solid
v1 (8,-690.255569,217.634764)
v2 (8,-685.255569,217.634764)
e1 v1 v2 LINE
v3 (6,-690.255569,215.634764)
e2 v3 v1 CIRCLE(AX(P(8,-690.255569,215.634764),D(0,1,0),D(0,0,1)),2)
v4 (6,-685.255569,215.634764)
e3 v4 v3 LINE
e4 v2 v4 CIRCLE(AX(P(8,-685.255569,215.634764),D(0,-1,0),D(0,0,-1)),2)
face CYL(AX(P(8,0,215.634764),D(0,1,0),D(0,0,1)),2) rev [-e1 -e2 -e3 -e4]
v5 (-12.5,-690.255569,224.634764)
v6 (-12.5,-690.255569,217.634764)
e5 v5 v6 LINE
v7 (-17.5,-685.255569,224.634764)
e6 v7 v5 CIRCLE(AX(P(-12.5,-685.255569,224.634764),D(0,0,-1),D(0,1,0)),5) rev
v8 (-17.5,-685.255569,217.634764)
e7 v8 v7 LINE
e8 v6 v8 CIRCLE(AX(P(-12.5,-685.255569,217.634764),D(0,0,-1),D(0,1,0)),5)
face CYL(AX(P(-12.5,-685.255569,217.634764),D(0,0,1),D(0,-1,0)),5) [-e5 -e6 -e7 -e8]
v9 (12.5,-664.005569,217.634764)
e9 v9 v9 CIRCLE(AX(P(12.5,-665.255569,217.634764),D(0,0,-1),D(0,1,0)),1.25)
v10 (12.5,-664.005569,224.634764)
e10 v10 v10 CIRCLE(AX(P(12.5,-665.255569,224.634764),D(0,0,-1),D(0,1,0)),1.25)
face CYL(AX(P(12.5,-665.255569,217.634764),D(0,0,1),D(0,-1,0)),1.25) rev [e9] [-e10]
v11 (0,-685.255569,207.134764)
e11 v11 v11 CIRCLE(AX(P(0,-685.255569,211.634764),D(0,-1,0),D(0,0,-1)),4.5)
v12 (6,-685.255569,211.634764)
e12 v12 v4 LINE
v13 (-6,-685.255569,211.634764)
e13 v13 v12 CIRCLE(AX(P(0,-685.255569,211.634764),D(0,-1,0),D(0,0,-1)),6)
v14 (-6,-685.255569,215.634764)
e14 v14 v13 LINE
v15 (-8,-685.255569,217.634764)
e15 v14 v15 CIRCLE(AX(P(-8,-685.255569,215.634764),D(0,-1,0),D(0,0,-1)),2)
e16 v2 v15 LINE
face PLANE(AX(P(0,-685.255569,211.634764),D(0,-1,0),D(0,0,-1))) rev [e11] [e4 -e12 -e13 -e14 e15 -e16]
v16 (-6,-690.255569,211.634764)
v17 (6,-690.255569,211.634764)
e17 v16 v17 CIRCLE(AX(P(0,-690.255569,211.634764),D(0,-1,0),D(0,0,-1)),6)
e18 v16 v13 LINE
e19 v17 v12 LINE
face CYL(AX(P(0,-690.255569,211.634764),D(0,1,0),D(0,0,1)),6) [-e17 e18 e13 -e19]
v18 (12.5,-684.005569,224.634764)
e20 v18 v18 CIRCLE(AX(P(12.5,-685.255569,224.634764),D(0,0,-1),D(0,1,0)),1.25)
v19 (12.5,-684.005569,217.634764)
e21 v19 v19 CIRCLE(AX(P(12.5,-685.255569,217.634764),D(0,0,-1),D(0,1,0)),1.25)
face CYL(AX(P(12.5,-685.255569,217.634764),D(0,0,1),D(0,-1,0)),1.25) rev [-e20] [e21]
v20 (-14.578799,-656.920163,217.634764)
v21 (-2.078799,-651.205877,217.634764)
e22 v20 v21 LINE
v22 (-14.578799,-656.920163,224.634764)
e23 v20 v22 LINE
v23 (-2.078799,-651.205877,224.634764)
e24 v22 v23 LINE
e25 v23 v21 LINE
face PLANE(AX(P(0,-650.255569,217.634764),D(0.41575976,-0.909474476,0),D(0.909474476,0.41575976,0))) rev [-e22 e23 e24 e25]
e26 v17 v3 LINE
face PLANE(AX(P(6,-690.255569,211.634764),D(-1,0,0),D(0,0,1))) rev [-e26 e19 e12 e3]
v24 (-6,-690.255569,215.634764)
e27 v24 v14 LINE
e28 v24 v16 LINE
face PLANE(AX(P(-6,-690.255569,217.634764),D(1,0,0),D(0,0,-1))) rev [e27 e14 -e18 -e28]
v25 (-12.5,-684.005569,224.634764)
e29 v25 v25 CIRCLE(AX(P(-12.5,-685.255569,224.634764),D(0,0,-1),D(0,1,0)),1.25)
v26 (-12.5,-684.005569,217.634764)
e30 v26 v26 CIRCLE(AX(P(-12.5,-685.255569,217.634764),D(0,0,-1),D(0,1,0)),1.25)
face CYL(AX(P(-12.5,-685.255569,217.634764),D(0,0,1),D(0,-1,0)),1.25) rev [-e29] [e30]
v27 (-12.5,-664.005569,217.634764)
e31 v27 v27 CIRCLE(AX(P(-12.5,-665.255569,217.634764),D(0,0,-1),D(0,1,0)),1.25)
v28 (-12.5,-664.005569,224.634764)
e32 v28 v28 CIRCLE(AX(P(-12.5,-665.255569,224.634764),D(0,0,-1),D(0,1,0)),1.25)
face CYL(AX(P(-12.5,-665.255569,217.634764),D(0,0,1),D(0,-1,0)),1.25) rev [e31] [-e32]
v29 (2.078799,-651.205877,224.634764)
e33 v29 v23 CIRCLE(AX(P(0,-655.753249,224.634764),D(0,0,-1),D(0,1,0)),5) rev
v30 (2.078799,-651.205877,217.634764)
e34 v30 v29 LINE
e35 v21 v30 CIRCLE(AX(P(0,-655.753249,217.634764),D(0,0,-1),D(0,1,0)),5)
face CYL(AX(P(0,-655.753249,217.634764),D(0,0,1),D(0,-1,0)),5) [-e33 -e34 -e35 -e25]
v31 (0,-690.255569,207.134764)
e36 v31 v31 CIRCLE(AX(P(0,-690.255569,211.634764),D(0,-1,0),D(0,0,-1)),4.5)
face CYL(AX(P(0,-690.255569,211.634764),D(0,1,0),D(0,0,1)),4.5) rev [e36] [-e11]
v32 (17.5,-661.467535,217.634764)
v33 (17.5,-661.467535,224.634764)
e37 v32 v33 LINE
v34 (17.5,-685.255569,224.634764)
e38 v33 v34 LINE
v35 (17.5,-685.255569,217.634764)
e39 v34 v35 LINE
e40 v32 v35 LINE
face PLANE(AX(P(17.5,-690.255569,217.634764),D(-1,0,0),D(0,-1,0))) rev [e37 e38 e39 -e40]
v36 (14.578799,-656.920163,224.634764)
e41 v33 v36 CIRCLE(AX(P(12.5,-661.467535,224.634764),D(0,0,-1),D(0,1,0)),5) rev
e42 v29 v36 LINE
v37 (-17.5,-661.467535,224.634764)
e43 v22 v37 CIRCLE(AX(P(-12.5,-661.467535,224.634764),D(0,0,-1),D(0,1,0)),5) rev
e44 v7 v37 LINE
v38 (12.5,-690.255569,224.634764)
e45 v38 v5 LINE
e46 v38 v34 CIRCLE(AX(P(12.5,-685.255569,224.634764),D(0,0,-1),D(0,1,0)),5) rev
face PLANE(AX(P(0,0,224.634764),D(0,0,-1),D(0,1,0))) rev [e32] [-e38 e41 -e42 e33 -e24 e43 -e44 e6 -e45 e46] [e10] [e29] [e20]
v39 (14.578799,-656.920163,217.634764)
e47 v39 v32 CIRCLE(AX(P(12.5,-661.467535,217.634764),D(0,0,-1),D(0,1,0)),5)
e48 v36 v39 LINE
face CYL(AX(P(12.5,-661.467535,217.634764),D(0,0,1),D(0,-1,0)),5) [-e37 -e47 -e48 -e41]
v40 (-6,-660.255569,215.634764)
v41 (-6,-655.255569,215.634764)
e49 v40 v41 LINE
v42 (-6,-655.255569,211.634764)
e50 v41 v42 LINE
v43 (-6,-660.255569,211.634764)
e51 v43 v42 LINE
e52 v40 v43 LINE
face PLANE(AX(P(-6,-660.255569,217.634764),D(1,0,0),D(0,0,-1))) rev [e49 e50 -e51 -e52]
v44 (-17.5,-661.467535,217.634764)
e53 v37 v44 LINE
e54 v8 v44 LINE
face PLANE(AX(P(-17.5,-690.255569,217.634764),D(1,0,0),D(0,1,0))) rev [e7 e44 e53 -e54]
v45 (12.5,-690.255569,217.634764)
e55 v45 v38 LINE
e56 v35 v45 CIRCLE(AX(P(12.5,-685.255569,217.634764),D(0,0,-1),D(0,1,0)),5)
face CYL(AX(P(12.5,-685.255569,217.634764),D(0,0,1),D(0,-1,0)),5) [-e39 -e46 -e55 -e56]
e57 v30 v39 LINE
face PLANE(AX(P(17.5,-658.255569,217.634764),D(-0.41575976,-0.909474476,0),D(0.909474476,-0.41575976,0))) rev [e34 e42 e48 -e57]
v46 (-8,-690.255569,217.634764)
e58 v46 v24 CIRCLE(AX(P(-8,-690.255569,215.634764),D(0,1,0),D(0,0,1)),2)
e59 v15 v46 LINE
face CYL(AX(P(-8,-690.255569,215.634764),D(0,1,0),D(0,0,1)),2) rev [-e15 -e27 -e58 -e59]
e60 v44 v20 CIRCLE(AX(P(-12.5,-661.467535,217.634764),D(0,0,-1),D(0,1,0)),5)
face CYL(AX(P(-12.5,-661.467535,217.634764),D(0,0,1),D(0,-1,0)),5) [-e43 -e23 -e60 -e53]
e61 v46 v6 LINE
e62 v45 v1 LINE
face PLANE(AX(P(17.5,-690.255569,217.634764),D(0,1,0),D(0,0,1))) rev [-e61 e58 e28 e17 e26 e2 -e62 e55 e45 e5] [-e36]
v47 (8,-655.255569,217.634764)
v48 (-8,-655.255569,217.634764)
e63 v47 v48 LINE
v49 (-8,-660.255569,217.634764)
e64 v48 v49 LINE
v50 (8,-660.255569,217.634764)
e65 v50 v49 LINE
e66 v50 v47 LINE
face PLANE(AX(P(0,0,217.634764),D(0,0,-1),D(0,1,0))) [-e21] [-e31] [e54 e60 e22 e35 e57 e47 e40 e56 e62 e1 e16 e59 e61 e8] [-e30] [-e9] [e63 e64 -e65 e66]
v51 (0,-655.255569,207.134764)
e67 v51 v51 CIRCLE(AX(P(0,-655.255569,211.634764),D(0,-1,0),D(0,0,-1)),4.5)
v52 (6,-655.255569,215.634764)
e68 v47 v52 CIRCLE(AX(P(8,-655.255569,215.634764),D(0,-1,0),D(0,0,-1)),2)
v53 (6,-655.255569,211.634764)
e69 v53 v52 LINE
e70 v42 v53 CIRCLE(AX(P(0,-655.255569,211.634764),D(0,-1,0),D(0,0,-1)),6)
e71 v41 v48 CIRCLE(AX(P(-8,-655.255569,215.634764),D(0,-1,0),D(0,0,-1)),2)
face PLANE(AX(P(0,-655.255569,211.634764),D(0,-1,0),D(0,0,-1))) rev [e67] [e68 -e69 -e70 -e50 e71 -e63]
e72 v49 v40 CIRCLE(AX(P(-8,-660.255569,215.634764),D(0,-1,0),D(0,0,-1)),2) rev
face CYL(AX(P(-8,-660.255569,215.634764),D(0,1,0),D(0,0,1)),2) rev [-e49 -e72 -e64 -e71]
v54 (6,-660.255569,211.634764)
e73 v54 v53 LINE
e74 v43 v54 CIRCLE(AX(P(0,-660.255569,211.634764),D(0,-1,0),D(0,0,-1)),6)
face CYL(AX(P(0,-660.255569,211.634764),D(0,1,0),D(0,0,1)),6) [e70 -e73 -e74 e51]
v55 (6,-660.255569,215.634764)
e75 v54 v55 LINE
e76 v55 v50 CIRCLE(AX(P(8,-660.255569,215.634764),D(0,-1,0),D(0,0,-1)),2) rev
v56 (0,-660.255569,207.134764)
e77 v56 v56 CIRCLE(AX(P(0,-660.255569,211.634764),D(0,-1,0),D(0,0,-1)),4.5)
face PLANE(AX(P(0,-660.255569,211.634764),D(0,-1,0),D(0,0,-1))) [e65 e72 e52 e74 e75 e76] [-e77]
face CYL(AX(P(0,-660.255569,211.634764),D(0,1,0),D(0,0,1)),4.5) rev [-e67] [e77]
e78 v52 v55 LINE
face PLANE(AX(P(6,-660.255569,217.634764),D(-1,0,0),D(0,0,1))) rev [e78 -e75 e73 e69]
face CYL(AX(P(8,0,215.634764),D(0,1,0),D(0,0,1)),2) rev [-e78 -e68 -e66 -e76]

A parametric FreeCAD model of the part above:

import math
import FreeCAD as App
import Part
import Sketcher
Q = App.Units.Quantity


def edges_at(feature, points):
    """Names of the edges that pass closest to the given points."""
    edges = feature.Shape.Edges
    near = lambda p: min(range(len(edges)), key=lambda i: edges[i].distToShape(Part.Vertex(*p))[0])
    return sorted({f"Edge{near(p) + 1}" for p in points})


def add_polygon(sketch, points):
    """Adds a closed chain of lines whose ends are joined by coincident constraints."""
    first, n = sketch.GeometryCount, len(points)
    for a, b in zip(points, points[1:] + points[:1]):
        sketch.addGeometry(Part.LineSegment(App.Vector(*a, 0), App.Vector(*b, 0)), False)
    for i in range(n):
        sketch.addConstraint(Sketcher.Constraint("Coincident", first + i, 2, first + (i + 1) % n, 1))

doc = App.newDocument("Part")
params = doc.addObject("Spreadsheet::Sheet", "Params")
for row, (alias, value) in enumerate([
    ("sketch1_diameter", "2.5 mm"),
    ("sketch1_width", "35 mm"),
    ("sketch1_height", "32 mm"),
    ("pad1_length", "7 mm"),
    ("sketch2_diameter", "9 mm"),
    ("sketch2_radius", "6 mm"),
    ("sketch2_height", "6 mm"),
    ("pad2_length", "5 mm"),
    ("sketch3_diameter", "9 mm"),
    ("sketch3_radius", "6 mm"),
    ("sketch3_height", "6 mm"),
    ("pad3_length", "5 mm"),
    ("fillet_radius", "2 mm"),
    ("fillet2_radius", "5 mm"),
], start=1):
    params.set(f"A{row}", alias)
    params.set(f"B{row}", "=" + value)
    params.setAlias(f"B{row}", alias)

body = doc.addObject("PartDesign::Body", "Body")

sketch1 = body.newObject("Sketcher::SketchObject", "Sketch")
sketch1.AttachmentSupport = (doc.getObject("XY_Plane"), [""])
sketch1.MapMode = "FlatFace"
sketch1.AttachmentOffset = App.Placement(App.Vector(0, 0, 224.634764), App.Rotation())
add_polygon(sketch1, [(17.5, -658.3), (17.5, -690.3), (-17.5, -690.3), (-17.5, -658.3), (0, -650.3)])
sketch1.addGeometry(Part.Circle(App.Vector(12.5, -665.3, 0), App.Vector(0, 0, 1), 1.2), False)
sketch1.addGeometry(Part.Circle(App.Vector(-12.5, -665.3, 0), App.Vector(0, 0, 1), 1.2), False)
sketch1.addGeometry(Part.Circle(App.Vector(12.5, -685.3, 0), App.Vector(0, 0, 1), 1.2), False)
sketch1.addGeometry(Part.Circle(App.Vector(-12.5, -685.3, 0), App.Vector(0, 0, 1), 1.2), False)
sketch1.addConstraint(Sketcher.Constraint("Vertical", 0))
sketch1.addConstraint(Sketcher.Constraint("Horizontal", 1))
sketch1.addConstraint(Sketcher.Constraint("Vertical", 2))
sketch1.addConstraint(Sketcher.Constraint("Equal", 5, 6))
sketch1.addConstraint(Sketcher.Constraint("Equal", 6, 7))
sketch1.addConstraint(Sketcher.Constraint("Equal", 7, 8))
sketch1.addConstraint(Sketcher.Constraint("Symmetric", 5, 3, 6, 3, -2))
sketch1.addConstraint(Sketcher.Constraint("Symmetric", 7, 3, 8, 3, -2))
sketch1.addConstraint(Sketcher.Constraint("Symmetric", 2, 2, 4, 2, -2))
sketch1.addConstraint(Sketcher.Constraint("PointOnObject", 3, 2, -2))
sketch1.addConstraint(Sketcher.Constraint("Vertical", 5, 3, 7, 3))
sketch1.addConstraint(Sketcher.Constraint("Diameter", 5, Q("2.5 mm")))
sketch1.addConstraint(Sketcher.Constraint("DistanceX", 1, 2, 1, 1, Q("35 mm")))
sketch1.addConstraint(Sketcher.Constraint("DistanceY", 0, 2, 0, 1, Q("32 mm")))
sketch1.addConstraint(Sketcher.Constraint("DistanceX", 6, 3, 5, 3, Q("25 mm")))
sketch1.addConstraint(Sketcher.Constraint("DistanceY", 7, 3, 5, 3, Q("20 mm")))
sketch1.addConstraint(Sketcher.Constraint("DistanceY", 0, 2, 7, 3, Q("5 mm")))
sketch1.addConstraint(Sketcher.Constraint("DistanceY", 2, 2, 3, 2, Q("8 mm")))
sketch1.addConstraint(Sketcher.Constraint("DistanceY", 5, 3, -1, 1, Q("665.255569 mm")))
sketch1.setExpression("Constraints[16]", "Params.sketch1_diameter")
sketch1.setExpression("Constraints[17]", "Params.sketch1_width")
sketch1.setExpression("Constraints[18]", "Params.sketch1_height")
pad1 = body.newObject("PartDesign::Pad", "Pad")
pad1.Profile = sketch1
pad1.setExpression("Length", "Params.pad1_length")
pad1.Reversed = True

sketch2 = body.newObject("Sketcher::SketchObject", "Sketch001")
sketch2.AttachmentSupport = (doc.getObject("XZ_Plane"), [""])
sketch2.MapMode = "FlatFace"
sketch2.AttachmentOffset = App.Placement(App.Vector(0, 0, 655.255569), App.Rotation())
sketch2.addGeometry(Part.LineSegment(App.Vector(6, 217.6, 0), App.Vector(-6, 217.6, 0)), False)
sketch2.addGeometry(Part.LineSegment(App.Vector(-6, 217.6, 0), App.Vector(-6, 211.6, 0)), False)
sketch2.addGeometry(Part.ArcOfCircle(Part.Circle(App.Vector(0, 211.6, 0), App.Vector(0, 0, 1), 6), math.radians(180), math.radians(360)), False)
sketch2.addGeometry(Part.LineSegment(App.Vector(6, 211.6, 0), App.Vector(6, 217.6, 0)), False)
sketch2.addGeometry(Part.Circle(App.Vector(0, 211.6, 0), App.Vector(0, 0, 1), 4.5), False)
sketch2.addConstraint(Sketcher.Constraint("Coincident", 0, 2, 1, 1))
sketch2.addConstraint(Sketcher.Constraint("Tangent", 1, 2, 2, 1))
sketch2.addConstraint(Sketcher.Constraint("Tangent", 2, 2, 3, 1))
sketch2.addConstraint(Sketcher.Constraint("Coincident", 3, 2, 0, 1))
sketch2.addConstraint(Sketcher.Constraint("Horizontal", 0))
sketch2.addConstraint(Sketcher.Constraint("Vertical", 1))
sketch2.addConstraint(Sketcher.Constraint("Vertical", 3))
sketch2.addConstraint(Sketcher.Constraint("Coincident", 4, 3, 2, 3))
sketch2.addConstraint(Sketcher.Constraint("PointOnObject", 2, 3, -2))
sketch2.addConstraint(Sketcher.Constraint("Diameter", 4, Q("9 mm")))
sketch2.addConstraint(Sketcher.Constraint("Radius", 2, Q("6 mm")))
sketch2.addConstraint(Sketcher.Constraint("DistanceY", 1, 2, 1, 1, Q("6 mm")))
sketch2.addConstraint(Sketcher.Constraint("DistanceY", -1, 1, 2, 3, Q("211.634764 mm")))
sketch2.setExpression("Constraints[9]", "Params.sketch2_diameter")
sketch2.setExpression("Constraints[10]", "Params.sketch2_radius")
sketch2.setExpression("Constraints[11]", "Params.sketch2_height")
pad2 = body.newObject("PartDesign::Pad", "Pad001")
pad2.Profile = sketch2
pad2.setExpression("Length", "Params.pad2_length")

sketch3 = body.newObject("Sketcher::SketchObject", "Sketch002")
sketch3.AttachmentSupport = (doc.getObject("XZ_Plane"), [""])
sketch3.MapMode = "FlatFace"
sketch3.AttachmentOffset = App.Placement(App.Vector(0, 0, 685.255569), App.Rotation())
sketch3.addGeometry(Part.LineSegment(App.Vector(6, 217.6, 0), App.Vector(-6, 217.6, 0)), False)
sketch3.addGeometry(Part.LineSegment(App.Vector(-6, 217.6, 0), App.Vector(-6, 211.6, 0)), False)
sketch3.addGeometry(Part.ArcOfCircle(Part.Circle(App.Vector(0, 211.6, 0), App.Vector(0, 0, 1), 6), math.radians(180), math.radians(360)), False)
sketch3.addGeometry(Part.LineSegment(App.Vector(6, 211.6, 0), App.Vector(6, 217.6, 0)), False)
sketch3.addGeometry(Part.Circle(App.Vector(0, 211.6, 0), App.Vector(0, 0, 1), 4.5), False)
sketch3.addConstraint(Sketcher.Constraint("Coincident", 0, 2, 1, 1))
sketch3.addConstraint(Sketcher.Constraint("Tangent", 1, 2, 2, 1))
sketch3.addConstraint(Sketcher.Constraint("Tangent", 2, 2, 3, 1))
sketch3.addConstraint(Sketcher.Constraint("Coincident", 3, 2, 0, 1))
sketch3.addConstraint(Sketcher.Constraint("Horizontal", 0))
sketch3.addConstraint(Sketcher.Constraint("Vertical", 1))
sketch3.addConstraint(Sketcher.Constraint("Vertical", 3))
sketch3.addConstraint(Sketcher.Constraint("Coincident", 4, 3, 2, 3))
sketch3.addConstraint(Sketcher.Constraint("PointOnObject", 2, 3, -2))
sketch3.addConstraint(Sketcher.Constraint("Diameter", 4, Q("9 mm")))
sketch3.addConstraint(Sketcher.Constraint("Radius", 2, Q("6 mm")))
sketch3.addConstraint(Sketcher.Constraint("DistanceY", 1, 2, 1, 1, Q("6 mm")))
sketch3.addConstraint(Sketcher.Constraint("DistanceY", -1, 1, 2, 3, Q("211.634764 mm")))
sketch3.setExpression("Constraints[9]", "Params.sketch3_diameter")
sketch3.setExpression("Constraints[10]", "Params.sketch3_radius")
sketch3.setExpression("Constraints[11]", "Params.sketch3_height")
pad3 = body.newObject("PartDesign::Pad", "Pad002")
pad3.Profile = sketch3
pad3.setExpression("Length", "Params.pad3_length")
doc.recompute()

fillet = body.newObject("PartDesign::Fillet", "Fillet")
fillet.Base = (pad3, edges_at(pad3, [
    (6, -657.756, 217.635),
    (-6, -657.756, 217.635),
    (6, -687.756, 217.635),
    (-6, -687.756, 217.635),
]))
fillet.setExpression("Radius", "Params.fillet_radius")
doc.recompute()

fillet2 = body.newObject("PartDesign::Fillet", "Fillet001")
fillet2.Base = (fillet, edges_at(fillet, [
    (17.5, -690.256, 221.135),
    (17.5, -658.256, 221.135),
    (0, -650.256, 221.135),
    (-17.5, -658.256, 221.135),
    (-17.5, -690.256, 221.135),
]))
fillet2.setExpression("Radius", "Params.fillet2_radius")

doc.recompute()
